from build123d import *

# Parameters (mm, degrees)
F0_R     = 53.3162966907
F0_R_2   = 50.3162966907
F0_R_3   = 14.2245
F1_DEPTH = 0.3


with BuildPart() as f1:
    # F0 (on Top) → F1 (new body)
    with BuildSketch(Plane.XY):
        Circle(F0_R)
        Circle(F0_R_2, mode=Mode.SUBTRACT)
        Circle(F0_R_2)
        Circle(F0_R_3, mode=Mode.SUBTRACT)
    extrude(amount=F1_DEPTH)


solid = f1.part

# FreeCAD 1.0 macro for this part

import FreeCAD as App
import Part
import Sketcher

V = App.Vector

doc = App.newDocument("Part")
body = doc.addObject("PartDesign::Body", "Body")

# Sketch on XY plane
sketch1 = body.newObject("Sketcher::SketchObject", "Sketch")
sketch1.AttachmentSupport = (doc.getObject("XY_Plane"), [""])
sketch1.MapMode = "FlatFace"
sketch1.addGeometry(Part.Circle(V(0, 0, 0), V(0, 0, 1), 53.316297), False)
sketch1.addGeometry(Part.Circle(V(0, 0, 0), V(0, 0, 1), 14.2245), False)
sketch1.addConstraint(Sketcher.Constraint("Coincident", 0, 3, -1, 1))
sketch1.addConstraint(Sketcher.Constraint("Coincident", 1, 3, -1, 1))
sketch1.addConstraint(Sketcher.Constraint("Diameter", 1, 28.449))
sketch1.addConstraint(Sketcher.Constraint("Diameter", 0, 106.632593))
pad1 = body.newObject("PartDesign::Pad", "Pad")
pad1.Profile = sketch1
pad1.Length = 0.3

doc.recompute()
